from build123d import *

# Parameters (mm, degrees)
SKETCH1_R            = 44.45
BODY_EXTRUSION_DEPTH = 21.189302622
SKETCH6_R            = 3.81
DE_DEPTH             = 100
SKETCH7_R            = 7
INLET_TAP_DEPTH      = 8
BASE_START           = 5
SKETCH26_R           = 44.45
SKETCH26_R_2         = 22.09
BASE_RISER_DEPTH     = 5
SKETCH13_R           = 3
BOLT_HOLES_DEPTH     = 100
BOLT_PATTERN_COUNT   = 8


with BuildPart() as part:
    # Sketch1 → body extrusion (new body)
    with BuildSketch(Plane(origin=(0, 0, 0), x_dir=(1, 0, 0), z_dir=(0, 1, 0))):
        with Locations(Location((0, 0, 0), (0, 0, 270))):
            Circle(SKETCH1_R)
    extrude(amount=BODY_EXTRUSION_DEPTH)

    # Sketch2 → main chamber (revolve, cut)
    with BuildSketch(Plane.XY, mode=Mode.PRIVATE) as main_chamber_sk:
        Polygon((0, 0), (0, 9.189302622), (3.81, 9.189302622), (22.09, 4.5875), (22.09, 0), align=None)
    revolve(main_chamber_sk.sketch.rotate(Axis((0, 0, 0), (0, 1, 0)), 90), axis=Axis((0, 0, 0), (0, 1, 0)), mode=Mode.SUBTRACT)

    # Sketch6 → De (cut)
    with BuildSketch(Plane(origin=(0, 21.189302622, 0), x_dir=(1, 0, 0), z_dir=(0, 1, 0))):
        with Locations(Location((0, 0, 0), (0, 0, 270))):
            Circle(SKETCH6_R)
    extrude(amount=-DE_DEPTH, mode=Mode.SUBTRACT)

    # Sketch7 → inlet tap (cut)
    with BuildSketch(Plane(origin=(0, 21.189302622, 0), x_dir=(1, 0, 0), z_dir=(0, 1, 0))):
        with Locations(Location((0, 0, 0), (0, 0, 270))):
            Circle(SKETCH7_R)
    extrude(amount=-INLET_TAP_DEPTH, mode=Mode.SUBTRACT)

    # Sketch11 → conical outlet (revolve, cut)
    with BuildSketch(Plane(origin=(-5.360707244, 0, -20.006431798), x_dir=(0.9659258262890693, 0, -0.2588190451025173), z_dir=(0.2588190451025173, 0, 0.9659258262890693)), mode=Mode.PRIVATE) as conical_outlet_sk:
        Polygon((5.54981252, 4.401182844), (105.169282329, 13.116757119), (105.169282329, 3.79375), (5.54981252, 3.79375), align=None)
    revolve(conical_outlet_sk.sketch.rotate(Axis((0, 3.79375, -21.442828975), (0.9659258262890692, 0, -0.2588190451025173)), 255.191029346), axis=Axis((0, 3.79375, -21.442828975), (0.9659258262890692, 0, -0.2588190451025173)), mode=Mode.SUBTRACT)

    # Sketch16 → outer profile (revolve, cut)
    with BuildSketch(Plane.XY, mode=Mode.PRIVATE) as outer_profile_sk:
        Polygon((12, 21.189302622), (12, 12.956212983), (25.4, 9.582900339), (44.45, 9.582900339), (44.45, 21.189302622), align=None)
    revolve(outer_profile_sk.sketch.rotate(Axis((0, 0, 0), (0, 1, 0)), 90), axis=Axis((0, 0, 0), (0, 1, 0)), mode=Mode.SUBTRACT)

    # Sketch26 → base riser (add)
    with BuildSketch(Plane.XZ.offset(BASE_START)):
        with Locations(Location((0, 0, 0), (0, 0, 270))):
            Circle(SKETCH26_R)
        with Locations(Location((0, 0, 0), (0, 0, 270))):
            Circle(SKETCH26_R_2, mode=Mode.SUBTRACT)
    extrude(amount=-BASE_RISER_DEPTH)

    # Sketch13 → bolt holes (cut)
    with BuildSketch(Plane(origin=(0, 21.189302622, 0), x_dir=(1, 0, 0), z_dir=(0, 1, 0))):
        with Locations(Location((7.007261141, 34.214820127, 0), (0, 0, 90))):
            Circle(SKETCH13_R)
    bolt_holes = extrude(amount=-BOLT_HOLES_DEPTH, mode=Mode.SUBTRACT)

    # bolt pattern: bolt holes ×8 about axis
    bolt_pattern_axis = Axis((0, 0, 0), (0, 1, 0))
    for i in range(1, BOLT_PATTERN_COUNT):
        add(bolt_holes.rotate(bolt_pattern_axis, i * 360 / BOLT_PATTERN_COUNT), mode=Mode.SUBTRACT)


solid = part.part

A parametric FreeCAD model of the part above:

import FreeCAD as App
import Part
import Sketcher

V = App.Vector
Q = App.Units.Quantity

doc = App.newDocument("Part")
body = doc.addObject("PartDesign::Body", "Body")

# Sketch on XZ plane
sketch1 = body.newObject("Sketcher::SketchObject", "Sketch")
sketch1.AttachmentSupport = (doc.getObject("XZ_Plane"), [""])
sketch1.MapMode = "FlatFace"
sketch1.addGeometry(Part.Circle(V(0, 0, 0), V(0, 0, 1), 44), False)
sketch1.addConstraint(Sketcher.Constraint("Coincident", 0, 3, -1, 1))
sketch1.addConstraint(Sketcher.Constraint("Diameter", 0, Q("88.9 mm")))
pad1 = body.newObject("PartDesign::Pad", "Pad")
pad1.Profile = sketch1
pad1.Length = 21.189303
pad1.Reversed = True

# Sketch on XY plane
sketch2 = body.newObject("Sketcher::SketchObject", "Sketch001")
sketch2.AttachmentSupport = (doc.getObject("XY_Plane"), [""])
sketch2.MapMode = "FlatFace"
sketch2.addGeometry(Part.LineSegment(V(0, 9.2, 0), V(0, 0, 0)), False)
sketch2.addGeometry(Part.LineSegment(V(0, 0, 0), V(22.1, 0, 0)), False)
sketch2.addGeometry(Part.LineSegment(V(22.1, 0, 0), V(22.1, 4.6, 0)), False)
sketch2.addGeometry(Part.LineSegment(V(22.1, 4.6, 0), V(3.8, 9.2, 0)), False)
sketch2.addGeometry(Part.LineSegment(V(3.8, 9.2, 0), V(0, 9.2, 0)), False)
sketch2.addConstraint(Sketcher.Constraint("Coincident", 0, 2, 1, 1))
sketch2.addConstraint(Sketcher.Constraint("Coincident", 1, 2, 2, 1))
sketch2.addConstraint(Sketcher.Constraint("Coincident", 2, 2, 3, 1))
sketch2.addConstraint(Sketcher.Constraint("Coincident", 3, 2, 4, 1))
sketch2.addConstraint(Sketcher.Constraint("Coincident", 4, 2, 0, 1))
sketch2.addConstraint(Sketcher.Constraint("Vertical", 0))
sketch2.addConstraint(Sketcher.Constraint("Horizontal", 1))
sketch2.addConstraint(Sketcher.Constraint("Vertical", 2))
sketch2.addConstraint(Sketcher.Constraint("Horizontal", 4))
sketch2.addConstraint(Sketcher.Constraint("Coincident", 0, 2, -1, 1))
sketch2.addConstraint(Sketcher.Constraint("DistanceX", 1, 1, 1, 2, Q("22.09 mm")))
sketch2.addConstraint(Sketcher.Constraint("DistanceX", 4, 2, 4, 1, Q("3.81 mm")))
sketch2.addConstraint(Sketcher.Constraint("DistanceY", 2, 1, 2, 2, Q("4.5875 mm")))
sketch2.addConstraint(Sketcher.Constraint("Distance", 3, Q("18.850331 mm")))
groove = body.newObject("PartDesign::Groove", "Groove")
groove.Profile = sketch2
groove.ReferenceAxis = (sketch2, ["V_Axis"])
groove.Angle = 360

# Sketch on XZ plane
sketch3 = body.newObject("Sketcher::SketchObject", "Sketch002")
sketch3.AttachmentSupport = (doc.getObject("XZ_Plane"), [""])
sketch3.MapMode = "FlatFace"
sketch3.AttachmentOffset = App.Placement(V(0, 0, -21.189303), App.Rotation())
sketch3.addGeometry(Part.Circle(V(0, 0, 0), V(0, 0, 1), 3.8), False)
sketch3.addConstraint(Sketcher.Constraint("Coincident", 0, 3, -1, 1))
sketch3.addConstraint(Sketcher.Constraint("Diameter", 0, Q("7.62 mm")))
pocket1 = body.newObject("PartDesign::Pocket", "Pocket")
pocket1.Profile = sketch3
pocket1.Length = 100
pocket1.Reversed = True

# Sketch on XZ plane
sketch4 = body.newObject("Sketcher::SketchObject", "Sketch003")
sketch4.AttachmentSupport = (doc.getObject("XZ_Plane"), [""])
sketch4.MapMode = "FlatFace"
sketch4.AttachmentOffset = App.Placement(V(0, 0, -21.189303), App.Rotation())
sketch4.addGeometry(Part.Circle(V(0, 0, 0), V(0, 0, 1), 7), False)
sketch4.addConstraint(Sketcher.Constraint("Coincident", 0, 3, -1, 1))
sketch4.addConstraint(Sketcher.Constraint("Diameter", 0, Q("14 mm")))
pocket2 = body.newObject("PartDesign::Pocket", "Pocket001")
pocket2.Profile = sketch4
pocket2.Length = 8
pocket2.Reversed = True

# Sketch on an angled plane
sketch5 = body.newObject("Sketcher::SketchObject", "Sketch004")
sketch5.Placement = App.Placement(V(-5.360707, 0, -20.006432), App.Rotation(V(0.965925826, 0, -0.258819045), V(0, 0.999999999, 0), V(0.258819045, 0, 0.965925826), "ZXY"))
sketch5.addGeometry(Part.LineSegment(V(105.2, 13.1, 0), V(5.5, 4.4, 0)), False)
sketch5.addGeometry(Part.LineSegment(V(5.5, 4.4, 0), V(5.5, 3.8, 0)), False)
sketch5.addGeometry(Part.LineSegment(V(5.5, 3.8, 0), V(105.2, 3.8, 0)), False)
sketch5.addGeometry(Part.LineSegment(V(105.2, 3.8, 0), V(105.2, 13.1, 0)), False)
sketch5.addGeometry(Part.LineSegment(V(5.5, 3.8, 0), V(105.2, 3.8, 0)), True)  # axis
sketch5.addConstraint(Sketcher.Constraint("Coincident", 0, 2, 1, 1))
sketch5.addConstraint(Sketcher.Constraint("Coincident", 1, 2, 2, 1))
sketch5.addConstraint(Sketcher.Constraint("Coincident", 2, 2, 3, 1))
sketch5.addConstraint(Sketcher.Constraint("Coincident", 3, 2, 0, 1))
sketch5.addConstraint(Sketcher.Constraint("Vertical", 1))
sketch5.addConstraint(Sketcher.Constraint("Horizontal", 2))
sketch5.addConstraint(Sketcher.Constraint("Vertical", 3))
sketch5.addConstraint(Sketcher.Constraint("Horizontal", 4))
sketch5.addConstraint(Sketcher.Constraint("Coincident", 4, 1, 1, 2))
sketch5.addConstraint(Sketcher.Constraint("Vertical", 3, 2, 4, 2))
sketch5.addConstraint(Sketcher.Constraint("Angle", 0, Q("-175 deg")))
sketch5.addConstraint(Sketcher.Constraint("Distance", 0, Q("100 mm")))
sketch5.addConstraint(Sketcher.Constraint("DistanceY", 1, 2, 1, 1, Q("0.607433 mm")))
sketch5.addConstraint(Sketcher.Constraint("DistanceY", -1, 1, 1, 2, Q("3.79375 mm")))
sketch5.addConstraint(Sketcher.Constraint("DistanceX", -1, 1, 0, 2, Q("5.549813 mm")))
groove2 = body.newObject("PartDesign::Groove", "Groove001")
groove2.Profile = sketch5
groove2.ReferenceAxis = (sketch5, ["Axis0"])
groove2.Angle = 360

# Sketch on XY plane
sketch6 = body.newObject("Sketcher::SketchObject", "Sketch005")
sketch6.AttachmentSupport = (doc.getObject("XY_Plane"), [""])
sketch6.MapMode = "FlatFace"
sketch6.addGeometry(Part.LineSegment(V(12, 21, 0), V(12, 13, 0)), False)
sketch6.addGeometry(Part.LineSegment(V(12, 13, 0), V(25, 10, 0)), False)
sketch6.addGeometry(Part.LineSegment(V(25, 10, 0), V(44, 10, 0)), False)
sketch6.addGeometry(Part.LineSegment(V(44, 10, 0), V(44, 21, 0)), False)
sketch6.addGeometry(Part.LineSegment(V(44, 21, 0), V(12, 21, 0)), False)
sketch6.addConstraint(Sketcher.Constraint("Coincident", 0, 2, 1, 1))
sketch6.addConstraint(Sketcher.Constraint("Coincident", 1, 2, 2, 1))
sketch6.addConstraint(Sketcher.Constraint("Coincident", 2, 2, 3, 1))
sketch6.addConstraint(Sketcher.Constraint("Coincident", 3, 2, 4, 1))
sketch6.addConstraint(Sketcher.Constraint("Coincident", 4, 2, 0, 1))
sketch6.addConstraint(Sketcher.Constraint("Vertical", 0))
sketch6.addConstraint(Sketcher.Constraint("Horizontal", 2))
sketch6.addConstraint(Sketcher.Constraint("Vertical", 3))
sketch6.addConstraint(Sketcher.Constraint("Horizontal", 4))
sketch6.addConstraint(Sketcher.Constraint("DistanceX", -1, 1, 0, 2, Q("12 mm")))
sketch6.addConstraint(Sketcher.Constraint("DistanceX", 2, 1, 2, 2, Q("19.05 mm")))
sketch6.addConstraint(Sketcher.Constraint("DistanceX", 4, 2, 4, 1, Q("32.45 mm")))
sketch6.addConstraint(Sketcher.Constraint("DistanceY", 0, 2, 0, 1, Q("8.23309 mm")))
sketch6.addConstraint(Sketcher.Constraint("DistanceY", -1, 1, 1, 2, Q("9.5829 mm")))
sketch6.addConstraint(Sketcher.Constraint("DistanceY", 3, 1, 3, 2, Q("11.606402 mm")))
groove3 = body.newObject("PartDesign::Groove", "Groove002")
groove3.Profile = sketch6
groove3.ReferenceAxis = (sketch6, ["V_Axis"])
groove3.Angle = 360

# Sketch on XZ plane
sketch7 = body.newObject("Sketcher::SketchObject", "Sketch006")
sketch7.AttachmentSupport = (doc.getObject("XZ_Plane"), [""])
sketch7.MapMode = "FlatFace"
sketch7.AttachmentOffset = App.Placement(V(0, 0, 5), App.Rotation())
sketch7.addGeometry(Part.Circle(V(0, 0, 0), V(0, 0, 1), 44), False)
sketch7.addGeometry(Part.Circle(V(0, 0, 0), V(0, 0, 1), 22), False)
sketch7.addConstraint(Sketcher.Constraint("Coincident", 0, 3, -1, 1))
sketch7.addConstraint(Sketcher.Constraint("Coincident", 1, 3, -1, 1))
sketch7.addConstraint(Sketcher.Constraint("Diameter", 0, Q("88.9 mm")))
sketch7.addConstraint(Sketcher.Constraint("Diameter", 1, Q("44.18 mm")))
pad2 = body.newObject("PartDesign::Pad", "Pad001")
pad2.Profile = sketch7
pad2.Length = 5
pad2.Reversed = True

# Sketch on XZ plane
sketch8 = body.newObject("Sketcher::SketchObject", "Sketch007")
sketch8.AttachmentSupport = (doc.getObject("XZ_Plane"), [""])
sketch8.MapMode = "FlatFace"
sketch8.AttachmentOffset = App.Placement(V(0, 0, -21.189303), App.Rotation())
sketch8.addGeometry(Part.Circle(V(7, -34.2, 0), V(0, 0, 1), 3), False)
sketch8.addConstraint(Sketcher.Constraint("Diameter", 0, Q("6 mm")))
sketch8.addConstraint(Sketcher.Constraint("DistanceX", -1, 1, 0, 3, Q("7.007261 mm")))
sketch8.addConstraint(Sketcher.Constraint("DistanceY", 0, 3, -1, 1, Q("34.21482 mm")))
pocket3 = body.newObject("PartDesign::Pocket", "Pocket002")
pocket3.Profile = sketch8
pocket3.Length = 100
pocket3.Reversed = True
doc.recompute()

polarpattern = body.newObject("PartDesign::PolarPattern", "PolarPattern")
polarpattern.Originals = [pocket3]
polarpattern.Axis = (doc.getObject("Y_Axis"), [""])
polarpattern.Angle = 360
polarpattern.Occurrences = 8
body.Tip = polarpattern

doc.recompute()
